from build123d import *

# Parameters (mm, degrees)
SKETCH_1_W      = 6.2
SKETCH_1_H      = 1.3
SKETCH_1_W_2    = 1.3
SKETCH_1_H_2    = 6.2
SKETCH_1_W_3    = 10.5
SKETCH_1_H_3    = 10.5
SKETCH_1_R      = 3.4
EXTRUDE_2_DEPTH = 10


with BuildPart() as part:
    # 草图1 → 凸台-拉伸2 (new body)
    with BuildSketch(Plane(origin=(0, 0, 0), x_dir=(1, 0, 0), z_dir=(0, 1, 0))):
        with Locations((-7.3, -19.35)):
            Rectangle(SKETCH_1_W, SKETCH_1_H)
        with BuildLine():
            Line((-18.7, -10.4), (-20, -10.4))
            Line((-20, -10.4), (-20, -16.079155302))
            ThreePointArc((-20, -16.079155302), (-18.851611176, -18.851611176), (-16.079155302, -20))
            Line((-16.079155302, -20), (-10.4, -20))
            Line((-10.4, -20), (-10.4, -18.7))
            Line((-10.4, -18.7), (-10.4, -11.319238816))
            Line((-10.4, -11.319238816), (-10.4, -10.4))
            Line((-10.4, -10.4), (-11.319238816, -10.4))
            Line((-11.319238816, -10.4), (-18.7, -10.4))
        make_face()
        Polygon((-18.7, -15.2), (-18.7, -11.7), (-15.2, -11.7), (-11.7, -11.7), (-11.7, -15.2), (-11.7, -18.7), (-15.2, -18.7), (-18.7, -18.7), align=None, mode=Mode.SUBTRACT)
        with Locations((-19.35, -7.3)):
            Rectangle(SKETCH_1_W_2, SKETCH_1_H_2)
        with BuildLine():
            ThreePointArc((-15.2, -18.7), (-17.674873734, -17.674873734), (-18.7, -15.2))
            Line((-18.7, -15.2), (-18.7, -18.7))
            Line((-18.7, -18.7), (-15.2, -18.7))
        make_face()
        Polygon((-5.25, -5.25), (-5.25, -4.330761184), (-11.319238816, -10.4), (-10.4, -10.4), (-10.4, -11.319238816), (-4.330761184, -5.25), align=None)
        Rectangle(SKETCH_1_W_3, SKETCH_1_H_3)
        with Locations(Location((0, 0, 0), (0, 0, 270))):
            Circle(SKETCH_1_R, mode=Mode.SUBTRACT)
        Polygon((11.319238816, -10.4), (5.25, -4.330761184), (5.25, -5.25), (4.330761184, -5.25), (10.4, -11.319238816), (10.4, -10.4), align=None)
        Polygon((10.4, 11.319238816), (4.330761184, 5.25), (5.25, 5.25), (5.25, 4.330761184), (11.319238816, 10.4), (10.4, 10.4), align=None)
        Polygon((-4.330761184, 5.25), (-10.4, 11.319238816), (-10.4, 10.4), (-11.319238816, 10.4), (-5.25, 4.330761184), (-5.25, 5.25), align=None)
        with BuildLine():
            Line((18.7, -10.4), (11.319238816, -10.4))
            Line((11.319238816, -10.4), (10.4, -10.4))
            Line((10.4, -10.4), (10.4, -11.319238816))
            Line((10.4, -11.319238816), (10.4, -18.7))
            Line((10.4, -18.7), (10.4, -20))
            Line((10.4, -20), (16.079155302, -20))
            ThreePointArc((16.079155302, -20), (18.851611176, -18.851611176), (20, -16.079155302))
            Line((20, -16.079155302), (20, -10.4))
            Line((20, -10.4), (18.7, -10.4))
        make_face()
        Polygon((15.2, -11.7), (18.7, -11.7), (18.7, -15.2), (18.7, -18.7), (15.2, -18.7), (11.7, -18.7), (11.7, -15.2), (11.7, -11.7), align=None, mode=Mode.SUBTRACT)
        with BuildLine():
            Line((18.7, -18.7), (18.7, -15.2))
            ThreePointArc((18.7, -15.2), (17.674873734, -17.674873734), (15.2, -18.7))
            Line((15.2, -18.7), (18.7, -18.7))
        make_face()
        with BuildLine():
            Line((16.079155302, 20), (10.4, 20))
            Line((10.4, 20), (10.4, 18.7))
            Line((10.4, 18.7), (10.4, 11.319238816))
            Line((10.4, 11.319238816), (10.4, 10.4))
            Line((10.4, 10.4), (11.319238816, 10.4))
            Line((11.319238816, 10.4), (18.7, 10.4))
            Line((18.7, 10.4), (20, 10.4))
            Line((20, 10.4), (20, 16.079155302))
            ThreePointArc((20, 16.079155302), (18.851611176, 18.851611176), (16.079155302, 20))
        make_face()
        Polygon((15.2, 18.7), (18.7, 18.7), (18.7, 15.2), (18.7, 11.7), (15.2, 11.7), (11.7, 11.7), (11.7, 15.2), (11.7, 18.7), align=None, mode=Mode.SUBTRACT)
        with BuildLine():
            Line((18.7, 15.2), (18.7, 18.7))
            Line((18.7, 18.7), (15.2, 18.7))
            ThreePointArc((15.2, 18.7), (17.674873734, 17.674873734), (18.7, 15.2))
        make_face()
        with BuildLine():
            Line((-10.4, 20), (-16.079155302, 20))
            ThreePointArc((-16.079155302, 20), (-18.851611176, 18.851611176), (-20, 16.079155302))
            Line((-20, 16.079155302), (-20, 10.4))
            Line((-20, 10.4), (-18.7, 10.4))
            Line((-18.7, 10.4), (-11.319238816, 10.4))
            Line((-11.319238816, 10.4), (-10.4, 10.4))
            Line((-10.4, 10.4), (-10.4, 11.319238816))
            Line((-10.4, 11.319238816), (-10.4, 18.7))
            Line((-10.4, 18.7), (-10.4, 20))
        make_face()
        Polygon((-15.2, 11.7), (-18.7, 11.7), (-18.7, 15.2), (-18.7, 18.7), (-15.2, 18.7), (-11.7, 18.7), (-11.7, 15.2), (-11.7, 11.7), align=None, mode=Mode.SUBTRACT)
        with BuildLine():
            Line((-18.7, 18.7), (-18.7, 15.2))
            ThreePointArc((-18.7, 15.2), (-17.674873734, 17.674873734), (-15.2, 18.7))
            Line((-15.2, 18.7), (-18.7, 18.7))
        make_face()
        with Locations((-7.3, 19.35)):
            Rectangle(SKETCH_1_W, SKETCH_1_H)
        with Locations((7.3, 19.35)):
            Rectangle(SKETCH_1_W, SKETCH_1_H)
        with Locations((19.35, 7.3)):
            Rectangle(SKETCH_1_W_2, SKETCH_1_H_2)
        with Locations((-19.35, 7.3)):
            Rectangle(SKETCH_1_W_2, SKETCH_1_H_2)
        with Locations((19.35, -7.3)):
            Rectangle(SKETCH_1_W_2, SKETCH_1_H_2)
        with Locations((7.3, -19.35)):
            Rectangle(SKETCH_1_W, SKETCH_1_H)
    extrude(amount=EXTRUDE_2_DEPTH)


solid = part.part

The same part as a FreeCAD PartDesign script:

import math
import FreeCAD as App
import Part
import Sketcher

doc = App.newDocument("Part")
body = doc.addObject("PartDesign::Body", "Body")

sketch1 = body.newObject("Sketcher::SketchObject", "Sketch")
sketch1.AttachmentSupport = (doc.getObject("XZ_Plane"), [""])
sketch1.MapMode = "FlatFace"
sketch1.addGeometry([
    Part.LineSegment(App.Vector(-4.2, 20, 0), App.Vector(-4.2, 18.7, 0)),
    Part.LineSegment(App.Vector(-4.2, 18.7, 0), App.Vector(-10.4, 18.7, 0)),
    Part.LineSegment(App.Vector(-10.4, 18.7, 0), App.Vector(-10.4, 11.3, 0)),
    Part.LineSegment(App.Vector(-10.4, 11.3, 0), App.Vector(-4.3, 5.2, 0)),
    Part.LineSegment(App.Vector(-4.3, 5.2, 0), App.Vector(4.3, 5.2, 0)),
    Part.LineSegment(App.Vector(4.3, 5.2, 0), App.Vector(10.4, 11.3, 0)),
    Part.LineSegment(App.Vector(10.4, 11.3, 0), App.Vector(10.4, 18.7, 0)),
    Part.LineSegment(App.Vector(10.4, 18.7, 0), App.Vector(4.2, 18.7, 0)),
    Part.LineSegment(App.Vector(4.2, 18.7, 0), App.Vector(4.2, 20, 0)),
    Part.LineSegment(App.Vector(4.2, 20, 0), App.Vector(16.1, 20, 0)),
    Part.ArcOfCircle(Part.Circle(App.Vector(16.1, 16.1, 0), App.Vector(0, 0, 1), 3.9), math.radians(0), math.radians(90)),
    Part.LineSegment(App.Vector(20, 16.1, 0), App.Vector(20, 4.2, 0)),
    Part.LineSegment(App.Vector(20, 4.2, 0), App.Vector(18.7, 4.2, 0)),
    Part.LineSegment(App.Vector(18.7, 4.2, 0), App.Vector(18.7, 10.4, 0)),
    Part.LineSegment(App.Vector(18.7, 10.4, 0), App.Vector(11.3, 10.4, 0)),
    Part.LineSegment(App.Vector(11.3, 10.4, 0), App.Vector(5.2, 4.3, 0)),
    Part.LineSegment(App.Vector(5.2, 4.3, 0), App.Vector(5.2, -4.3, 0)),
    Part.LineSegment(App.Vector(5.2, -4.3, 0), App.Vector(11.3, -10.4, 0)),
    Part.LineSegment(App.Vector(11.3, -10.4, 0), App.Vector(18.7, -10.4, 0)),
    Part.LineSegment(App.Vector(18.7, -10.4, 0), App.Vector(18.7, -4.2, 0)),
    Part.LineSegment(App.Vector(18.7, -4.2, 0), App.Vector(20, -4.2, 0)),
    Part.LineSegment(App.Vector(20, -4.2, 0), App.Vector(20, -16.1, 0)),
    Part.ArcOfCircle(Part.Circle(App.Vector(16.1, -16.1, 0), App.Vector(0, 0, 1), 3.9), math.radians(-90), math.radians(0)),
    Part.LineSegment(App.Vector(16.1, -20, 0), App.Vector(4.2, -20, 0)),
    Part.LineSegment(App.Vector(4.2, -20, 0), App.Vector(4.2, -18.7, 0)),
    Part.LineSegment(App.Vector(4.2, -18.7, 0), App.Vector(10.4, -18.7, 0)),
    Part.LineSegment(App.Vector(10.4, -18.7, 0), App.Vector(10.4, -11.3, 0)),
    Part.LineSegment(App.Vector(10.4, -11.3, 0), App.Vector(4.3, -5.2, 0)),
    Part.LineSegment(App.Vector(4.3, -5.2, 0), App.Vector(-4.3, -5.2, 0)),
    Part.LineSegment(App.Vector(-4.3, -5.2, 0), App.Vector(-10.4, -11.3, 0)),
    Part.LineSegment(App.Vector(-10.4, -11.3, 0), App.Vector(-10.4, -18.7, 0)),
    Part.LineSegment(App.Vector(-10.4, -18.7, 0), App.Vector(-4.2, -18.7, 0)),
    Part.LineSegment(App.Vector(-4.2, -18.7, 0), App.Vector(-4.2, -20, 0)),
    Part.LineSegment(App.Vector(-4.2, -20, 0), App.Vector(-16.1, -20, 0)),
    Part.ArcOfCircle(Part.Circle(App.Vector(-16.1, -16.1, 0), App.Vector(0, 0, 1), 3.9), math.radians(180), math.radians(270)),
    Part.LineSegment(App.Vector(-20, -16.1, 0), App.Vector(-20, -4.2, 0)),
    Part.LineSegment(App.Vector(-20, -4.2, 0), App.Vector(-18.7, -4.2, 0)),
    Part.LineSegment(App.Vector(-18.7, -4.2, 0), App.Vector(-18.7, -10.4, 0)),
    Part.LineSegment(App.Vector(-18.7, -10.4, 0), App.Vector(-11.3, -10.4, 0)),
    Part.LineSegment(App.Vector(-11.3, -10.4, 0), App.Vector(-5.2, -4.3, 0)),
    Part.LineSegment(App.Vector(-5.2, -4.3, 0), App.Vector(-5.2, 4.3, 0)),
    Part.LineSegment(App.Vector(-5.2, 4.3, 0), App.Vector(-11.3, 10.4, 0)),
    Part.LineSegment(App.Vector(-11.3, 10.4, 0), App.Vector(-18.7, 10.4, 0)),
    Part.LineSegment(App.Vector(-18.7, 10.4, 0), App.Vector(-18.7, 4.2, 0)),
    Part.LineSegment(App.Vector(-18.7, 4.2, 0), App.Vector(-20, 4.2, 0)),
    Part.LineSegment(App.Vector(-20, 4.2, 0), App.Vector(-20, 16.1, 0)),
    Part.ArcOfCircle(Part.Circle(App.Vector(-16.1, 16.1, 0), App.Vector(0, 0, 1), 3.9), math.radians(90), math.radians(180)),
    Part.LineSegment(App.Vector(-16.1, 20, 0), App.Vector(-4.2, 20, 0)),
    Part.LineSegment(App.Vector(-18.7, 15.2, 0), App.Vector(-18.7, 11.7, 0)),
    Part.LineSegment(App.Vector(-18.7, 11.7, 0), App.Vector(-11.7, 11.7, 0)),
    Part.LineSegment(App.Vector(-11.7, 11.7, 0), App.Vector(-11.7, 18.7, 0)),
    Part.LineSegment(App.Vector(-11.7, 18.7, 0), App.Vector(-15.2, 18.7, 0)),
    Part.ArcOfCircle(Part.Circle(App.Vector(-15.2, 15.2, 0), App.Vector(0, 0, 1), 3.5), math.radians(90), math.radians(180)),
    Part.LineSegment(App.Vector(11.7, 11.7, 0), App.Vector(18.7, 11.7, 0)),
    Part.LineSegment(App.Vector(18.7, 11.7, 0), App.Vector(18.7, 15.2, 0)),
    Part.ArcOfCircle(Part.Circle(App.Vector(15.2, 15.2, 0), App.Vector(0, 0, 1), 3.5), math.radians(0), math.radians(90)),
    Part.LineSegment(App.Vector(15.2, 18.7, 0), App.Vector(11.7, 18.7, 0)),
    Part.LineSegment(App.Vector(11.7, 18.7, 0), App.Vector(11.7, 11.7, 0)),
    Part.Circle(App.Vector(0, 0, 0), App.Vector(0, 0, 1), 3.4),
    Part.LineSegment(App.Vector(-11.7, -11.7, 0), App.Vector(-18.7, -11.7, 0)),
    Part.LineSegment(App.Vector(-18.7, -11.7, 0), App.Vector(-18.7, -15.2, 0)),
    Part.ArcOfCircle(Part.Circle(App.Vector(-15.2, -15.2, 0), App.Vector(0, 0, 1), 3.5), math.radians(-180), math.radians(-90)),
    Part.LineSegment(App.Vector(-15.2, -18.7, 0), App.Vector(-11.7, -18.7, 0)),
    Part.LineSegment(App.Vector(-11.7, -18.7, 0), App.Vector(-11.7, -11.7, 0)),
    Part.LineSegment(App.Vector(11.7, -18.7, 0), App.Vector(15.2, -18.7, 0)),
    Part.ArcOfCircle(Part.Circle(App.Vector(15.2, -15.2, 0), App.Vector(0, 0, 1), 3.5), math.radians(-90), math.radians(0)),
    Part.LineSegment(App.Vector(18.7, -15.2, 0), App.Vector(18.7, -11.7, 0)),
    Part.LineSegment(App.Vector(18.7, -11.7, 0), App.Vector(11.7, -11.7, 0)),
    Part.LineSegment(App.Vector(11.7, -11.7, 0), App.Vector(11.7, -18.7, 0)),
], False)
sketch1.addConstraint([
    Sketcher.Constraint("Coincident", 0, 2, 1, 1),
    Sketcher.Constraint("Coincident", 1, 2, 2, 1),
    Sketcher.Constraint("Coincident", 2, 2, 3, 1),
    Sketcher.Constraint("Coincident", 3, 2, 4, 1),
    Sketcher.Constraint("Coincident", 4, 2, 5, 1),
    Sketcher.Constraint("Coincident", 5, 2, 6, 1),
    Sketcher.Constraint("Coincident", 6, 2, 7, 1),
    Sketcher.Constraint("Coincident", 7, 2, 8, 1),
    Sketcher.Constraint("Coincident", 8, 2, 9, 1),
    Sketcher.Constraint("Tangent", 9, 2, 10, 2),
    Sketcher.Constraint("Tangent", 10, 1, 11, 1),
    Sketcher.Constraint("Coincident", 11, 2, 12, 1),
    Sketcher.Constraint("Coincident", 12, 2, 13, 1),
    Sketcher.Constraint("Coincident", 13, 2, 14, 1),
    Sketcher.Constraint("Coincident", 14, 2, 15, 1),
    Sketcher.Constraint("Coincident", 15, 2, 16, 1),
    Sketcher.Constraint("Coincident", 16, 2, 17, 1),
    Sketcher.Constraint("Coincident", 17, 2, 18, 1),
    Sketcher.Constraint("Coincident", 18, 2, 19, 1),
    Sketcher.Constraint("Coincident", 19, 2, 20, 1),
    Sketcher.Constraint("Coincident", 20, 2, 21, 1),
    Sketcher.Constraint("Tangent", 21, 2, 22, 2),
    Sketcher.Constraint("Tangent", 22, 1, 23, 1),
    Sketcher.Constraint("Coincident", 23, 2, 24, 1),
    Sketcher.Constraint("Coincident", 24, 2, 25, 1),
    Sketcher.Constraint("Coincident", 25, 2, 26, 1),
    Sketcher.Constraint("Coincident", 26, 2, 27, 1),
    Sketcher.Constraint("Coincident", 27, 2, 28, 1),
    Sketcher.Constraint("Coincident", 28, 2, 29, 1),
    Sketcher.Constraint("Coincident", 29, 2, 30, 1),
    Sketcher.Constraint("Coincident", 30, 2, 31, 1),
    Sketcher.Constraint("Coincident", 31, 2, 32, 1),
    Sketcher.Constraint("Coincident", 32, 2, 33, 1),
    Sketcher.Constraint("Tangent", 33, 2, 34, 2),
    Sketcher.Constraint("Tangent", 34, 1, 35, 1),
    Sketcher.Constraint("Coincident", 35, 2, 36, 1),
    Sketcher.Constraint("Coincident", 36, 2, 37, 1),
    Sketcher.Constraint("Coincident", 37, 2, 38, 1),
    Sketcher.Constraint("Coincident", 38, 2, 39, 1),
    Sketcher.Constraint("Coincident", 39, 2, 40, 1),
    Sketcher.Constraint("Coincident", 40, 2, 41, 1),
    Sketcher.Constraint("Coincident", 41, 2, 42, 1),
    Sketcher.Constraint("Coincident", 42, 2, 43, 1),
    Sketcher.Constraint("Coincident", 43, 2, 44, 1),
    Sketcher.Constraint("Coincident", 44, 2, 45, 1),
    Sketcher.Constraint("Tangent", 45, 2, 46, 2),
    Sketcher.Constraint("Tangent", 46, 1, 47, 1),
    Sketcher.Constraint("Coincident", 47, 2, 0, 1),
    Sketcher.Constraint("Coincident", 48, 2, 49, 1),
    Sketcher.Constraint("Coincident", 49, 2, 50, 1),
    Sketcher.Constraint("Coincident", 50, 2, 51, 1),
    Sketcher.Constraint("Tangent", 51, 2, 52, 1),
    Sketcher.Constraint("Tangent", 52, 2, 48, 1),
    Sketcher.Constraint("Coincident", 53, 2, 54, 1),
    Sketcher.Constraint("Tangent", 54, 2, 55, 1),
    Sketcher.Constraint("Tangent", 55, 2, 56, 1),
    Sketcher.Constraint("Coincident", 56, 2, 57, 1),
    Sketcher.Constraint("Coincident", 57, 2, 53, 1),
    Sketcher.Constraint("Coincident", 59, 2, 60, 1),
    Sketcher.Constraint("Tangent", 60, 2, 61, 1),
    Sketcher.Constraint("Tangent", 61, 2, 62, 1),
    Sketcher.Constraint("Coincident", 62, 2, 63, 1),
    Sketcher.Constraint("Coincident", 63, 2, 59, 1),
    Sketcher.Constraint("Tangent", 64, 2, 65, 1),
    Sketcher.Constraint("Tangent", 65, 2, 66, 1),
    Sketcher.Constraint("Coincident", 66, 2, 67, 1),
    Sketcher.Constraint("Coincident", 67, 2, 68, 1),
    Sketcher.Constraint("Coincident", 68, 2, 64, 1),
    Sketcher.Constraint("Vertical", 0),
    Sketcher.Constraint("Horizontal", 1),
    Sketcher.Constraint("Vertical", 2),
    Sketcher.Constraint("Horizontal", 4),
    Sketcher.Constraint("Vertical", 6),
    Sketcher.Constraint("Horizontal", 7),
    Sketcher.Constraint("Vertical", 8),
    Sketcher.Constraint("Horizontal", 9),
    Sketcher.Constraint("Vertical", 11),
    Sketcher.Constraint("Horizontal", 12),
    Sketcher.Constraint("Vertical", 13),
    Sketcher.Constraint("Horizontal", 14),
    Sketcher.Constraint("Vertical", 16),
    Sketcher.Constraint("Horizontal", 18),
    Sketcher.Constraint("Vertical", 19),
    Sketcher.Constraint("Horizontal", 20),
    Sketcher.Constraint("Vertical", 21),
    Sketcher.Constraint("Horizontal", 23),
    Sketcher.Constraint("Vertical", 24),
    Sketcher.Constraint("Horizontal", 25),
    Sketcher.Constraint("Vertical", 26),
    Sketcher.Constraint("Horizontal", 28),
    Sketcher.Constraint("Vertical", 30),
    Sketcher.Constraint("Horizontal", 31),
    Sketcher.Constraint("Vertical", 32),
    Sketcher.Constraint("Horizontal", 33),
    Sketcher.Constraint("Vertical", 35),
    Sketcher.Constraint("Horizontal", 36),
    Sketcher.Constraint("Vertical", 37),
    Sketcher.Constraint("Horizontal", 38),
    Sketcher.Constraint("Vertical", 40),
    Sketcher.Constraint("Horizontal", 42),
    Sketcher.Constraint("Vertical", 43),
    Sketcher.Constraint("Horizontal", 44),
    Sketcher.Constraint("Vertical", 45),
    Sketcher.Constraint("Horizontal", 47),
    Sketcher.Constraint("Vertical", 48),
    Sketcher.Constraint("Horizontal", 49),
    Sketcher.Constraint("Vertical", 50),
    Sketcher.Constraint("Horizontal", 51),
    Sketcher.Constraint("Horizontal", 53),
    Sketcher.Constraint("Vertical", 54),
    Sketcher.Constraint("Horizontal", 56),
    Sketcher.Constraint("Vertical", 57),
    Sketcher.Constraint("Horizontal", 59),
    Sketcher.Constraint("Vertical", 60),
    Sketcher.Constraint("Horizontal", 62),
    Sketcher.Constraint("Vertical", 63),
    Sketcher.Constraint("Horizontal", 64),
    Sketcher.Constraint("Vertical", 66),
    Sketcher.Constraint("Horizontal", 67),
    Sketcher.Constraint("Vertical", 68),
    Sketcher.Constraint("Coincident", 58, 3, -1, 1),
    Sketcher.Constraint("Equal", 10, 22),
    Sketcher.Constraint("Equal", 22, 34),
    Sketcher.Constraint("Equal", 34, 46),
    Sketcher.Constraint("Equal", 52, 55),
    Sketcher.Constraint("Equal", 55, 61),
    Sketcher.Constraint("Equal", 61, 65),
    Sketcher.Constraint("Symmetric", 10, 3, 34, 3, -1, 1),
    Sketcher.Constraint("Symmetric", 22, 3, 46, 3, -1, 1),
    Sketcher.Constraint("Symmetric", 55, 3, 61, 3, -1, 1),
    Sketcher.Constraint("Symmetric", 52, 3, 65, 3, -1, 1),
    Sketcher.Constraint("Symmetric", 0, 2, 24, 2, -1, 1),
    Sketcher.Constraint("Symmetric", 2, 2, 26, 2, -1, 1),
    Sketcher.Constraint("Symmetric", 3, 2, 27, 2, -1, 1),
    Sketcher.Constraint("Symmetric", 5, 2, 29, 2, -1, 1),
    Sketcher.Constraint("Symmetric", 7, 2, 31, 2, -1, 1),
    Sketcher.Constraint("Symmetric", 12, 2, 36, 2, -1, 1),
    Sketcher.Constraint("Symmetric", 14, 2, 38, 2, -1, 1),
    Sketcher.Constraint("Symmetric", 15, 2, 39, 2, -1, 1),
    Sketcher.Constraint("Symmetric", 17, 2, 41, 2, -1, 1),
    Sketcher.Constraint("Symmetric", 19, 2, 43, 2, -1, 1),
    Sketcher.Constraint("Symmetric", 57, 2, 63, 2, -1, 1),
    Sketcher.Constraint("Symmetric", 49, 2, 67, 2, -1, 1),
    Sketcher.Constraint("Symmetric", 22, 3, 34, 3, -2),
    Sketcher.Constraint("Symmetric", 52, 3, 55, 3, -2),
    Sketcher.Constraint("Symmetric", 2, 2, 5, 2, -2),
    Sketcher.Constraint("Symmetric", 0, 2, 7, 2, -2),
    Sketcher.Constraint("Symmetric", 19, 2, 36, 2, -2),
    Sketcher.Constraint("Symmetric", 17, 2, 38, 2, -2),
    Sketcher.Constraint("Symmetric", 49, 2, 57, 2, -2),
    Sketcher.Constraint("Perpendicular", 3, 5),
    Sketcher.Constraint("Parallel", 5, 15),
    Sketcher.Constraint("Perpendicular", 15, 17),
    Sketcher.Constraint("Perpendicular", 27, 29),
    Sketcher.Constraint("Perpendicular", 39, 41),
    Sketcher.Constraint("Horizontal", 16, 2, 39, 2),
    Sketcher.Constraint("Horizontal", 7, 2, 50, 2),
    Sketcher.Constraint("Vertical", 43, 2, 48, 2),
    Sketcher.Constraint("Equal", 44, 0),
    Sketcher.Constraint("Equal", 42, 2),
    Sketcher.Constraint("Equal", 47, 11),
    Sketcher.Constraint("Equal", 31, 13),
    Sketcher.Constraint("Equal", 28, 16),
    Sketcher.Constraint("Equal", 64, 48),
    Sketcher.Constraint("Equal", 5, 15),
    Sketcher.Constraint("Diameter", 58, 6.8),
    Sketcher.Constraint("Radius", 52, 3.5),
    Sketcher.Constraint("DistanceX", 49, 1, 49, 2, 7.0),
    Sketcher.Constraint("DistanceX", 1, 2, 1, 1, 6.2),
    Sketcher.Constraint("DistanceX", 12, 2, 12, 1, 1.3),
    Sketcher.Constraint("DistanceY", -1, 1, 8, 2, 20.0),
    Sketcher.Constraint("DistanceX", 0, 2, -1, 1, 4.2),
    Sketcher.Constraint("DistanceY", -1, 1, 3, 2, 5.25),
    Sketcher.Constraint("Radius", 10, 3.920845),
    Sketcher.Constraint("Distance", 3, 8.5832),
])
pad1 = body.newObject("PartDesign::Pad", "Pad")
pad1.Profile = sketch1
pad1.Length = 10
pad1.Reversed = True

doc.recompute()
